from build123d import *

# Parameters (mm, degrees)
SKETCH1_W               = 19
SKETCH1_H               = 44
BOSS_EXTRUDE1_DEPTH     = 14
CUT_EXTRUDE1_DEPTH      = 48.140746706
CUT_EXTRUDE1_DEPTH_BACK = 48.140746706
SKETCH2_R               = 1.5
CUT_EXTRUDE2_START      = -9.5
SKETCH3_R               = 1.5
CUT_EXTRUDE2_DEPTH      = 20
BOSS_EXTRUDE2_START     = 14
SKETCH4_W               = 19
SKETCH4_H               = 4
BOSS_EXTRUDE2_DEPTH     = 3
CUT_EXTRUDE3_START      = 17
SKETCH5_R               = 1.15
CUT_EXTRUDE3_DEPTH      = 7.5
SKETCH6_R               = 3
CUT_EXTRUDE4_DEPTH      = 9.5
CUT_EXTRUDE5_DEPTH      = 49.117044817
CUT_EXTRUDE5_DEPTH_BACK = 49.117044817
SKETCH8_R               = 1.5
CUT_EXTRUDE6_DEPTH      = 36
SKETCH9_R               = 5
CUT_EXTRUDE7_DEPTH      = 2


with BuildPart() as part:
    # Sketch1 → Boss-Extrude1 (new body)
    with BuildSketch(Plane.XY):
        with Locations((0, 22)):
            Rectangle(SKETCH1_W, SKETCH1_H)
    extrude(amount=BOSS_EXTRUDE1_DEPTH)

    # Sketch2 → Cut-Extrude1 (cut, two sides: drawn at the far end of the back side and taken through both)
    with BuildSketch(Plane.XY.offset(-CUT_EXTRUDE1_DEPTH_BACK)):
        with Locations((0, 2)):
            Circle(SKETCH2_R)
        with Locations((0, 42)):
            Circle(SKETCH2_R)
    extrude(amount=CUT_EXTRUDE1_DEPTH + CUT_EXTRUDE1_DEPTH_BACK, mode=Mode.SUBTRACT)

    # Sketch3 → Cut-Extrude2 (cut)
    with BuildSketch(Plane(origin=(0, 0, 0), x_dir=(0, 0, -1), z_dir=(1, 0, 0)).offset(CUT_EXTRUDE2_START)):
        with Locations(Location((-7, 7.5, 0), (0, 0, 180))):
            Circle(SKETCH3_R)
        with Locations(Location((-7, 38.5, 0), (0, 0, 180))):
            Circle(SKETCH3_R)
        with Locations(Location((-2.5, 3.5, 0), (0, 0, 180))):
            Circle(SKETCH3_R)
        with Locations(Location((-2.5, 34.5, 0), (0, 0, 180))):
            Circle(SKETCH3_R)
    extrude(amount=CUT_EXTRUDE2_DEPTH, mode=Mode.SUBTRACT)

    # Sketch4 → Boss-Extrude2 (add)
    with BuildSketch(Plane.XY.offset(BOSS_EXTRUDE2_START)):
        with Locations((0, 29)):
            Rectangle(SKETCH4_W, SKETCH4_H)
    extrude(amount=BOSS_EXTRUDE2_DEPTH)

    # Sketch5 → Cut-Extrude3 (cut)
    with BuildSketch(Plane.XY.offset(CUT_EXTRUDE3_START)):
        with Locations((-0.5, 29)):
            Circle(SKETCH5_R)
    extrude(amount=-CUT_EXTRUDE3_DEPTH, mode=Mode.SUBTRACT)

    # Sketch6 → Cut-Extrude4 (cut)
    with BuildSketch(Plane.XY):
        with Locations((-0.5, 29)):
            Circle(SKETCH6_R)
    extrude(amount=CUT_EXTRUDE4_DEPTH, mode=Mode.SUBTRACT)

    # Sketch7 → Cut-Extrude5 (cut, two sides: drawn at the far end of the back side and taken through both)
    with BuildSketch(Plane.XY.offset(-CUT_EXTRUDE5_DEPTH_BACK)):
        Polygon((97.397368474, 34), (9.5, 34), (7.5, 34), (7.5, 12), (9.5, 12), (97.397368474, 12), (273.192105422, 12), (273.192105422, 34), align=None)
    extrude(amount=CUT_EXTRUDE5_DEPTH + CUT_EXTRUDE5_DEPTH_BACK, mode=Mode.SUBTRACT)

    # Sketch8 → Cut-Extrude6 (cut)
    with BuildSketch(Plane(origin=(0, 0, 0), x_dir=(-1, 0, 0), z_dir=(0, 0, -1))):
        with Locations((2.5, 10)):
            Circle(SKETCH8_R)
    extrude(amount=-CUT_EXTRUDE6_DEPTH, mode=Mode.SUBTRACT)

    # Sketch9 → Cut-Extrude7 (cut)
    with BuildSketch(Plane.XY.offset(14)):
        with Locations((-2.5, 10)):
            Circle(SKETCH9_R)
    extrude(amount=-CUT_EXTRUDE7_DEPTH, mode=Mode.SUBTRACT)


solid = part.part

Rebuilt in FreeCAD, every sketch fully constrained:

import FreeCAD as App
import Part
import Sketcher


def add_polygon(sketch, points):
    """Adds a closed chain of lines whose ends are joined by coincident constraints."""
    first, n = sketch.GeometryCount, len(points)
    for a, b in zip(points, points[1:] + points[:1]):
        sketch.addGeometry(Part.LineSegment(App.Vector(*a, 0), App.Vector(*b, 0)), False)
    for i in range(n):
        sketch.addConstraint(Sketcher.Constraint("Coincident", first + i, 2, first + (i + 1) % n, 1))

doc = App.newDocument("Part")
body = doc.addObject("PartDesign::Body", "Body")

sketch1 = body.newObject("Sketcher::SketchObject", "Sketch")
sketch1.AttachmentSupport = (doc.getObject("XY_Plane"), [""])
sketch1.MapMode = "FlatFace"
add_polygon(sketch1, [(-9.5, 44), (-9.5, 0), (9.5, 0), (9.5, 44)])
sketch1.addConstraint(Sketcher.Constraint("Vertical", 0))
sketch1.addConstraint(Sketcher.Constraint("Horizontal", 1))
sketch1.addConstraint(Sketcher.Constraint("Vertical", 2))
sketch1.addConstraint(Sketcher.Constraint("Horizontal", 3))
sketch1.addConstraint(Sketcher.Constraint("Symmetric", 0, 2, 1, 2, -1, 1))
sketch1.addConstraint(Sketcher.Constraint("DistanceX", 1, 1, 1, 2, 19.0))
sketch1.addConstraint(Sketcher.Constraint("DistanceY", 0, 2, 0, 1, 44.0))
pad1 = body.newObject("PartDesign::Pad", "Pad")
pad1.Profile = sketch1
pad1.Length = 14

sketch2 = body.newObject("Sketcher::SketchObject", "Sketch001")
sketch2.AttachmentSupport = (doc.getObject("XY_Plane"), [""])
sketch2.MapMode = "FlatFace"
sketch2.addGeometry(Part.Circle(App.Vector(0, 2, 0), App.Vector(0, 0, 1), 1.5), False)
sketch2.addGeometry(Part.Circle(App.Vector(0, 42, 0), App.Vector(0, 0, 1), 1.5), False)
sketch2.addConstraint(Sketcher.Constraint("Equal", 0, 1))
sketch2.addConstraint(Sketcher.Constraint("PointOnObject", 0, 3, -2))
sketch2.addConstraint(Sketcher.Constraint("PointOnObject", 1, 3, -2))
sketch2.addConstraint(Sketcher.Constraint("Diameter", 0, 3.0))
sketch2.addConstraint(Sketcher.Constraint("DistanceY", -1, 1, 0, 3, 2.0))
sketch2.addConstraint(Sketcher.Constraint("DistanceY", -1, 1, 1, 3, 42.0))
pocket1 = body.newObject("PartDesign::Pocket", "Pocket")
pocket1.Profile = sketch2
pocket1.Type = "ThroughAll"
pocket1.Midplane = True

sketch3 = body.newObject("Sketcher::SketchObject", "Sketch002")
sketch3.AttachmentSupport = (doc.getObject("YZ_Plane"), [""])
sketch3.MapMode = "FlatFace"
sketch3.AttachmentOffset = App.Placement(App.Vector(0, 0, -9.5), App.Rotation())
sketch3.addGeometry(Part.Circle(App.Vector(7.5, 7, 0), App.Vector(0, 0, 1), 1.5), False)
sketch3.addGeometry(Part.Circle(App.Vector(38.5, 7, 0), App.Vector(0, 0, 1), 1.5), False)
sketch3.addGeometry(Part.Circle(App.Vector(3.5, 2.5, 0), App.Vector(0, 0, 1), 1.5), False)
sketch3.addGeometry(Part.Circle(App.Vector(34.5, 2.5, 0), App.Vector(0, 0, 1), 1.5), False)
sketch3.addConstraint(Sketcher.Constraint("Equal", 0, 1))
sketch3.addConstraint(Sketcher.Constraint("Equal", 1, 2))
sketch3.addConstraint(Sketcher.Constraint("Equal", 2, 3))
sketch3.addConstraint(Sketcher.Constraint("Horizontal", 0, 3, 1, 3))
sketch3.addConstraint(Sketcher.Constraint("Horizontal", 2, 3, 3, 3))
sketch3.addConstraint(Sketcher.Constraint("Diameter", 0, 3.0))
sketch3.addConstraint(Sketcher.Constraint("DistanceY", -1, 1, 0, 3, 7.0))
sketch3.addConstraint(Sketcher.Constraint("DistanceX", 0, 3, 1, 3, 31.0))
sketch3.addConstraint(Sketcher.Constraint("DistanceX", 2, 3, 0, 3, 4.0))
sketch3.addConstraint(Sketcher.Constraint("DistanceX", 3, 3, 1, 3, 4.0))
sketch3.addConstraint(Sketcher.Constraint("DistanceX", -1, 1, 0, 3, 7.5))
sketch3.addConstraint(Sketcher.Constraint("DistanceY", -1, 1, 2, 3, 2.5))
pocket2 = body.newObject("PartDesign::Pocket", "Pocket001")
pocket2.Profile = sketch3
pocket2.Length = 20
pocket2.Reversed = True

sketch4 = body.newObject("Sketcher::SketchObject", "Sketch003")
sketch4.AttachmentSupport = (doc.getObject("XY_Plane"), [""])
sketch4.MapMode = "FlatFace"
sketch4.AttachmentOffset = App.Placement(App.Vector(0, 0, 14), App.Rotation())
add_polygon(sketch4, [(-9.5, 31), (-9.5, 27), (9.5, 27), (9.5, 31)])
sketch4.addConstraint(Sketcher.Constraint("Vertical", 0))
sketch4.addConstraint(Sketcher.Constraint("Horizontal", 1))
sketch4.addConstraint(Sketcher.Constraint("Vertical", 2))
sketch4.addConstraint(Sketcher.Constraint("Horizontal", 3))
sketch4.addConstraint(Sketcher.Constraint("DistanceX", 1, 1, 1, 2, 19.0))
sketch4.addConstraint(Sketcher.Constraint("DistanceY", 0, 2, 0, 1, 4.0))
sketch4.addConstraint(Sketcher.Constraint("DistanceY", -1, 1, 0, 2, 27.0))
sketch4.addConstraint(Sketcher.Constraint("DistanceX", 0, 2, -1, 1, 9.5))
pad2 = body.newObject("PartDesign::Pad", "Pad001")
pad2.Profile = sketch4
pad2.Length = 3

sketch5 = body.newObject("Sketcher::SketchObject", "Sketch004")
sketch5.AttachmentSupport = (doc.getObject("XY_Plane"), [""])
sketch5.MapMode = "FlatFace"
sketch5.AttachmentOffset = App.Placement(App.Vector(0, 0, 17), App.Rotation())
sketch5.addGeometry(Part.Circle(App.Vector(-0.5, 29, 0), App.Vector(0, 0, 1), 1.15), False)
sketch5.addConstraint(Sketcher.Constraint("Diameter", 0, 2.3))
sketch5.addConstraint(Sketcher.Constraint("DistanceY", -1, 1, 0, 3, 29.0))
sketch5.addConstraint(Sketcher.Constraint("DistanceX", 0, 3, -1, 1, 0.5))
pocket3 = body.newObject("PartDesign::Pocket", "Pocket002")
pocket3.Profile = sketch5
pocket3.Length = 7.5

sketch6 = body.newObject("Sketcher::SketchObject", "Sketch005")
sketch6.AttachmentSupport = (doc.getObject("XY_Plane"), [""])
sketch6.MapMode = "FlatFace"
sketch6.addGeometry(Part.Circle(App.Vector(-0.5, 29, 0), App.Vector(0, 0, 1), 3), False)
sketch6.addConstraint(Sketcher.Constraint("Diameter", 0, 6.0))
sketch6.addConstraint(Sketcher.Constraint("DistanceY", -1, 1, 0, 3, 29.0))
sketch6.addConstraint(Sketcher.Constraint("DistanceX", 0, 3, -1, 1, 0.5))
pocket4 = body.newObject("PartDesign::Pocket", "Pocket003")
pocket4.Profile = sketch6
pocket4.Length = 9.5
pocket4.Reversed = True

sketch7 = body.newObject("Sketcher::SketchObject", "Sketch006")
sketch7.AttachmentSupport = (doc.getObject("XY_Plane"), [""])
sketch7.MapMode = "FlatFace"
add_polygon(sketch7, [(7.5, 34), (7.5, 12), (273.192105, 12), (273.192105, 34)])
sketch7.addConstraint(Sketcher.Constraint("Vertical", 0))
sketch7.addConstraint(Sketcher.Constraint("Horizontal", 1))
sketch7.addConstraint(Sketcher.Constraint("Vertical", 2))
sketch7.addConstraint(Sketcher.Constraint("Horizontal", 3))
sketch7.addConstraint(Sketcher.Constraint("DistanceY", 0, 2, 0, 1, 22.0))
sketch7.addConstraint(Sketcher.Constraint("DistanceY", -1, 1, 0, 2, 12.0))
sketch7.addConstraint(Sketcher.Constraint("DistanceX", -1, 1, 0, 2, 7.5))
sketch7.addConstraint(Sketcher.Constraint("DistanceX", 1, 1, 1, 2, 265.692105))
pocket5 = body.newObject("PartDesign::Pocket", "Pocket004")
pocket5.Profile = sketch7
pocket5.Type = "ThroughAll"
pocket5.Midplane = True

sketch8 = body.newObject("Sketcher::SketchObject", "Sketch007")
sketch8.AttachmentSupport = (doc.getObject("XY_Plane"), [""])
sketch8.MapMode = "FlatFace"
sketch8.addGeometry(Part.Circle(App.Vector(-2.5, 10, 0), App.Vector(0, 0, 1), 1.5), False)
sketch8.addConstraint(Sketcher.Constraint("Diameter", 0, 3.0))
sketch8.addConstraint(Sketcher.Constraint("DistanceY", -1, 1, 0, 3, 10.0))
sketch8.addConstraint(Sketcher.Constraint("DistanceX", 0, 3, -1, 1, 2.5))
pocket6 = body.newObject("PartDesign::Pocket", "Pocket005")
pocket6.Profile = sketch8
pocket6.Length = 36
pocket6.Reversed = True

sketch9 = body.newObject("Sketcher::SketchObject", "Sketch008")
sketch9.AttachmentSupport = (doc.getObject("XY_Plane"), [""])
sketch9.MapMode = "FlatFace"
sketch9.AttachmentOffset = App.Placement(App.Vector(0, 0, 14), App.Rotation())
sketch9.addGeometry(Part.Circle(App.Vector(-2.5, 10, 0), App.Vector(0, 0, 1), 5), False)
sketch9.addConstraint(Sketcher.Constraint("Diameter", 0, 10.0))
sketch9.addConstraint(Sketcher.Constraint("DistanceY", -1, 1, 0, 3, 10.0))
sketch9.addConstraint(Sketcher.Constraint("DistanceX", 0, 3, -1, 1, 2.5))
pocket7 = body.newObject("PartDesign::Pocket", "Pocket006")
pocket7.Profile = sketch9
pocket7.Length = 2

doc.recompute()
